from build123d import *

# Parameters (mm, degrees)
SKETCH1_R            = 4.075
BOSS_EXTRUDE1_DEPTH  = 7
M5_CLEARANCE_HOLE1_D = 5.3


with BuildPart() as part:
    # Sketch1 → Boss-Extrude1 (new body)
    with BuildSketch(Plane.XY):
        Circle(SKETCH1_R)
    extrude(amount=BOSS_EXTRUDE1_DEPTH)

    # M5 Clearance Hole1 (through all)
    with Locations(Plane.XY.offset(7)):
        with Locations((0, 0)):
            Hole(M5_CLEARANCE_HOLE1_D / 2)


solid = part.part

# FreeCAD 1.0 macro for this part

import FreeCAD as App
import Part
import Sketcher
Q = App.Units.Quantity

doc = App.newDocument("Part")
params = doc.addObject("Spreadsheet::Sheet", "Params")
for row, (alias, value) in enumerate([
    ("sketch1_diameter", "8.15 mm"),
    ("pad1_length", "7 mm"),
    ("sketch2_diameter", "5.3 mm"),
    ("hole_diameter", "5.3 mm"),
], start=1):
    params.set(f"A{row}", alias)
    params.set(f"B{row}", "=" + value)
    params.setAlias(f"B{row}", alias)

body = doc.addObject("PartDesign::Body", "Body")

# Sketch on XY plane
sketch1 = doc.addObject("Sketcher::SketchObject", "Sketch")
body.addObject(sketch1)
sketch1.AttachmentSupport = (doc.XY_Plane, [""])
sketch1.MapMode = "FlatFace"
sketch1.addGeometry(Part.Circle(App.Vector(0, 0, 0), App.Vector(0, 0, 1), 4.1), False)
sketch1.addConstraint([
    Sketcher.Constraint("Coincident", 0, 3, -1, 1),
    Sketcher.Constraint("Diameter", 0, Q("8.15 mm")),
])
sketch1.setExpression("Constraints[1]", "Params.sketch1_diameter")
pad1 = doc.addObject("PartDesign::Pad", "Pad")
body.addObject(pad1)
pad1.Profile = sketch1
pad1.setExpression("Length", "Params.pad1_length")

# Sketch on XY plane
sketch2 = doc.addObject("Sketcher::SketchObject", "Sketch001")
body.addObject(sketch2)
sketch2.AttachmentSupport = (doc.XY_Plane, [""])
sketch2.MapMode = "FlatFace"
sketch2.AttachmentOffset = App.Placement(App.Vector(0, 0, 7), App.Rotation())
sketch2.addGeometry(Part.Circle(App.Vector(0, 0, 0), App.Vector(0, 0, 1), 2.6), False)
sketch2.addConstraint([
    Sketcher.Constraint("Coincident", 0, 3, -1, 1),
    Sketcher.Constraint("Diameter", 0, Q("5.3 mm")),
])
sketch2.setExpression("Constraints[1]", "Params.sketch2_diameter")
doc.recompute()
hole = doc.addObject("PartDesign::Hole", "Hole")
body.addObject(hole)
hole.Profile = sketch2
hole.ThreadType = "None"
hole.setExpression("Diameter", "Params.hole_diameter")
hole.DepthType = "ThroughAll"

doc.recompute()
